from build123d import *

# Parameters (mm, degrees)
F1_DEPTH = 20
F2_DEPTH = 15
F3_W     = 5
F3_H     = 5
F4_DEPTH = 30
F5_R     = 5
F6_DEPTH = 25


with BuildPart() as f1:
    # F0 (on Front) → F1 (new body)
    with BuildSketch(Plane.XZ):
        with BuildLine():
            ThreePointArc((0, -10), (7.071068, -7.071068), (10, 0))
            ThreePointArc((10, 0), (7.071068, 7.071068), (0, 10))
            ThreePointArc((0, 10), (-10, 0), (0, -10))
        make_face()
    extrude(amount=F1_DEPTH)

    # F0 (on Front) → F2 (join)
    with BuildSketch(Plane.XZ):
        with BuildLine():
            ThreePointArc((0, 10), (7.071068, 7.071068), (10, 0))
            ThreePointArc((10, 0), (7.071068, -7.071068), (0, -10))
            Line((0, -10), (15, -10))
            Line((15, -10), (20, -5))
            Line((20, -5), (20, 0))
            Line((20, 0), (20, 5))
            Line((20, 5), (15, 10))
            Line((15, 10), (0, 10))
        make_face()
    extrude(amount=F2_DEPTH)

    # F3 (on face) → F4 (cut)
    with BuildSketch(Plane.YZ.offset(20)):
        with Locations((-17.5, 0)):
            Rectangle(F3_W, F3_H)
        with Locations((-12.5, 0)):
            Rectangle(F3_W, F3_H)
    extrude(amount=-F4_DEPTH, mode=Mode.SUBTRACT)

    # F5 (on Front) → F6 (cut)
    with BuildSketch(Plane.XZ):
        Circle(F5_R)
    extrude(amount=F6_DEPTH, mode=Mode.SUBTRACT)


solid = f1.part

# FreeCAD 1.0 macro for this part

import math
import FreeCAD as App
import Part
import Sketcher
from FreeCAD import Vector
Q = App.Units.Quantity

doc = App.newDocument("Part")
body = doc.addObject("PartDesign::Body", "Body")

# Sketch on XZ plane
sketch1 = body.newObject("Sketcher::SketchObject", "Sketch")
sketch1.AttachmentSupport = (doc.getObject("XZ_Plane"), [""])
sketch1.MapMode = "FlatFace"
sketch1.addGeometry([
    Part.ArcOfCircle(Part.Circle(Vector(0, 0, 0), Vector(0, 0, 1), 10), math.radians(-90), math.radians(0)),
    Part.ArcOfCircle(Part.Circle(Vector(0, 0, 0), Vector(0, 0, 1), 10), math.radians(0), math.radians(90)),
    Part.ArcOfCircle(Part.Circle(Vector(0, 0, 0), Vector(0, 0, 1), 10), math.radians(90), math.radians(270)),
], False)
sketch1.addConstraint([
    Sketcher.Constraint("Tangent", 0, 2, 1, 1),
    Sketcher.Constraint("Tangent", 1, 2, 2, 1),
    Sketcher.Constraint("Tangent", 2, 2, 0, 1),
    Sketcher.Constraint("Coincident", 0, 3, -1, 1),
    Sketcher.Constraint("PointOnObject", 0, 2, -1),
    Sketcher.Constraint("PointOnObject", 1, 2, -2),
    Sketcher.Constraint("PointOnObject", 2, 2, -2),
    Sketcher.Constraint("Radius", 0, Q("9.999999 mm")),
])
pad1 = body.newObject("PartDesign::Pad", "Pad")
pad1.Profile = sketch1
pad1.Length = 20

# Sketch on XZ plane
sketch2 = body.newObject("Sketcher::SketchObject", "Sketch001")
sketch2.AttachmentSupport = (doc.getObject("XZ_Plane"), [""])
sketch2.MapMode = "FlatFace"
sketch2.addGeometry([
    Part.ArcOfCircle(Part.Circle(Vector(0, 0, 0), Vector(0, 0, 1), 10), math.radians(0), math.radians(90)),  # 0
    Part.ArcOfCircle(Part.Circle(Vector(0, 0, 0), Vector(0, 0, 1), 10), math.radians(-90), math.radians(0)),  # 1
    Part.LineSegment(Vector(0, -10, 0), Vector(15, -10, 0)),  # 2
    Part.LineSegment(Vector(15, -10, 0), Vector(20, -5, 0)),  # 3
    Part.LineSegment(Vector(20, -5, 0), Vector(20, 5, 0)),  # 4
    Part.LineSegment(Vector(20, 5, 0), Vector(15, 10, 0)),  # 5
    Part.LineSegment(Vector(15, 10, 0), Vector(0, 10, 0)),  # 6
], False)
sketch2.addConstraint([
    Sketcher.Constraint("Tangent", 0, 1, 1, 2),
    Sketcher.Constraint("Tangent", 1, 1, 2, 1),
    Sketcher.Constraint("Coincident", 2, 2, 3, 1),
    Sketcher.Constraint("Coincident", 3, 2, 4, 1),
    Sketcher.Constraint("Coincident", 4, 2, 5, 1),
    Sketcher.Constraint("Coincident", 5, 2, 6, 1),
    Sketcher.Constraint("Tangent", 6, 2, 0, 2),
    Sketcher.Constraint("Horizontal", 2),
    Sketcher.Constraint("Vertical", 4),
    Sketcher.Constraint("Horizontal", 6),
    Sketcher.Constraint("Coincident", 0, 3, -1, 1),
    Sketcher.Constraint("Equal", 0, 1),
    Sketcher.Constraint("PointOnObject", 0, 1, -1),
    Sketcher.Constraint("Perpendicular", 3, 5),
    Sketcher.Constraint("Vertical", 2, 2, 5, 2),
    Sketcher.Constraint("Equal", 3, 5),
    Sketcher.Constraint("Radius", 0, Q("9.999999 mm")),
    Sketcher.Constraint("DistanceX", 2, 1, 2, 2, Q("15 mm")),
    Sketcher.Constraint("DistanceY", 4, 1, 4, 2, Q("10 mm")),
])
pad2 = body.newObject("PartDesign::Pad", "Pad001")
pad2.Profile = sketch2
pad2.Length = 15

# Sketch on YZ plane
sketch3 = body.newObject("Sketcher::SketchObject", "Sketch002")
sketch3.AttachmentSupport = (doc.getObject("YZ_Plane"), [""])
sketch3.MapMode = "FlatFace"
sketch3.AttachmentOffset = App.Placement(Vector(0, 0, 20), App.Rotation())
sketch3.addGeometry([
    Part.LineSegment(Vector(-20, 2, 0), Vector(-20, -2, 0)),
    Part.LineSegment(Vector(-20, -2, 0), Vector(-10, -2, 0)),
    Part.LineSegment(Vector(-10, -2, 0), Vector(-10, 2, 0)),
    Part.LineSegment(Vector(-10, 2, 0), Vector(-20, 2, 0)),
], False)
sketch3.addConstraint([
    Sketcher.Constraint("Coincident", 0, 2, 1, 1),
    Sketcher.Constraint("Coincident", 1, 2, 2, 1),
    Sketcher.Constraint("Coincident", 2, 2, 3, 1),
    Sketcher.Constraint("Coincident", 3, 2, 0, 1),
    Sketcher.Constraint("Vertical", 0),
    Sketcher.Constraint("Horizontal", 1),
    Sketcher.Constraint("Vertical", 2),
    Sketcher.Constraint("Horizontal", 3),
    Sketcher.Constraint("DistanceX", 1, 1, 1, 2, Q("10 mm")),
    Sketcher.Constraint("DistanceY", 0, 2, 0, 1, Q("5 mm")),
    Sketcher.Constraint("DistanceX", 0, 2, -1, 1, Q("20 mm")),
    Sketcher.Constraint("DistanceY", 0, 2, -1, 1, Q("2.5 mm")),
])
pocket1 = body.newObject("PartDesign::Pocket", "Pocket")
pocket1.Profile = sketch3
pocket1.Length = 30

# Sketch on XZ plane
sketch4 = body.newObject("Sketcher::SketchObject", "Sketch003")
sketch4.AttachmentSupport = (doc.getObject("XZ_Plane"), [""])
sketch4.MapMode = "FlatFace"
sketch4.addGeometry(Part.Circle(Vector(0, 0, 0), Vector(0, 0, 1), 5), False)
sketch4.addConstraint([
    Sketcher.Constraint("Coincident", 0, 3, -1, 1),
    Sketcher.Constraint("Diameter", 0, Q("10 mm")),
])
pocket2 = body.newObject("PartDesign::Pocket", "Pocket001")
pocket2.Profile = sketch4
pocket2.Length = 25
pocket2.Reversed = True

doc.recompute()
